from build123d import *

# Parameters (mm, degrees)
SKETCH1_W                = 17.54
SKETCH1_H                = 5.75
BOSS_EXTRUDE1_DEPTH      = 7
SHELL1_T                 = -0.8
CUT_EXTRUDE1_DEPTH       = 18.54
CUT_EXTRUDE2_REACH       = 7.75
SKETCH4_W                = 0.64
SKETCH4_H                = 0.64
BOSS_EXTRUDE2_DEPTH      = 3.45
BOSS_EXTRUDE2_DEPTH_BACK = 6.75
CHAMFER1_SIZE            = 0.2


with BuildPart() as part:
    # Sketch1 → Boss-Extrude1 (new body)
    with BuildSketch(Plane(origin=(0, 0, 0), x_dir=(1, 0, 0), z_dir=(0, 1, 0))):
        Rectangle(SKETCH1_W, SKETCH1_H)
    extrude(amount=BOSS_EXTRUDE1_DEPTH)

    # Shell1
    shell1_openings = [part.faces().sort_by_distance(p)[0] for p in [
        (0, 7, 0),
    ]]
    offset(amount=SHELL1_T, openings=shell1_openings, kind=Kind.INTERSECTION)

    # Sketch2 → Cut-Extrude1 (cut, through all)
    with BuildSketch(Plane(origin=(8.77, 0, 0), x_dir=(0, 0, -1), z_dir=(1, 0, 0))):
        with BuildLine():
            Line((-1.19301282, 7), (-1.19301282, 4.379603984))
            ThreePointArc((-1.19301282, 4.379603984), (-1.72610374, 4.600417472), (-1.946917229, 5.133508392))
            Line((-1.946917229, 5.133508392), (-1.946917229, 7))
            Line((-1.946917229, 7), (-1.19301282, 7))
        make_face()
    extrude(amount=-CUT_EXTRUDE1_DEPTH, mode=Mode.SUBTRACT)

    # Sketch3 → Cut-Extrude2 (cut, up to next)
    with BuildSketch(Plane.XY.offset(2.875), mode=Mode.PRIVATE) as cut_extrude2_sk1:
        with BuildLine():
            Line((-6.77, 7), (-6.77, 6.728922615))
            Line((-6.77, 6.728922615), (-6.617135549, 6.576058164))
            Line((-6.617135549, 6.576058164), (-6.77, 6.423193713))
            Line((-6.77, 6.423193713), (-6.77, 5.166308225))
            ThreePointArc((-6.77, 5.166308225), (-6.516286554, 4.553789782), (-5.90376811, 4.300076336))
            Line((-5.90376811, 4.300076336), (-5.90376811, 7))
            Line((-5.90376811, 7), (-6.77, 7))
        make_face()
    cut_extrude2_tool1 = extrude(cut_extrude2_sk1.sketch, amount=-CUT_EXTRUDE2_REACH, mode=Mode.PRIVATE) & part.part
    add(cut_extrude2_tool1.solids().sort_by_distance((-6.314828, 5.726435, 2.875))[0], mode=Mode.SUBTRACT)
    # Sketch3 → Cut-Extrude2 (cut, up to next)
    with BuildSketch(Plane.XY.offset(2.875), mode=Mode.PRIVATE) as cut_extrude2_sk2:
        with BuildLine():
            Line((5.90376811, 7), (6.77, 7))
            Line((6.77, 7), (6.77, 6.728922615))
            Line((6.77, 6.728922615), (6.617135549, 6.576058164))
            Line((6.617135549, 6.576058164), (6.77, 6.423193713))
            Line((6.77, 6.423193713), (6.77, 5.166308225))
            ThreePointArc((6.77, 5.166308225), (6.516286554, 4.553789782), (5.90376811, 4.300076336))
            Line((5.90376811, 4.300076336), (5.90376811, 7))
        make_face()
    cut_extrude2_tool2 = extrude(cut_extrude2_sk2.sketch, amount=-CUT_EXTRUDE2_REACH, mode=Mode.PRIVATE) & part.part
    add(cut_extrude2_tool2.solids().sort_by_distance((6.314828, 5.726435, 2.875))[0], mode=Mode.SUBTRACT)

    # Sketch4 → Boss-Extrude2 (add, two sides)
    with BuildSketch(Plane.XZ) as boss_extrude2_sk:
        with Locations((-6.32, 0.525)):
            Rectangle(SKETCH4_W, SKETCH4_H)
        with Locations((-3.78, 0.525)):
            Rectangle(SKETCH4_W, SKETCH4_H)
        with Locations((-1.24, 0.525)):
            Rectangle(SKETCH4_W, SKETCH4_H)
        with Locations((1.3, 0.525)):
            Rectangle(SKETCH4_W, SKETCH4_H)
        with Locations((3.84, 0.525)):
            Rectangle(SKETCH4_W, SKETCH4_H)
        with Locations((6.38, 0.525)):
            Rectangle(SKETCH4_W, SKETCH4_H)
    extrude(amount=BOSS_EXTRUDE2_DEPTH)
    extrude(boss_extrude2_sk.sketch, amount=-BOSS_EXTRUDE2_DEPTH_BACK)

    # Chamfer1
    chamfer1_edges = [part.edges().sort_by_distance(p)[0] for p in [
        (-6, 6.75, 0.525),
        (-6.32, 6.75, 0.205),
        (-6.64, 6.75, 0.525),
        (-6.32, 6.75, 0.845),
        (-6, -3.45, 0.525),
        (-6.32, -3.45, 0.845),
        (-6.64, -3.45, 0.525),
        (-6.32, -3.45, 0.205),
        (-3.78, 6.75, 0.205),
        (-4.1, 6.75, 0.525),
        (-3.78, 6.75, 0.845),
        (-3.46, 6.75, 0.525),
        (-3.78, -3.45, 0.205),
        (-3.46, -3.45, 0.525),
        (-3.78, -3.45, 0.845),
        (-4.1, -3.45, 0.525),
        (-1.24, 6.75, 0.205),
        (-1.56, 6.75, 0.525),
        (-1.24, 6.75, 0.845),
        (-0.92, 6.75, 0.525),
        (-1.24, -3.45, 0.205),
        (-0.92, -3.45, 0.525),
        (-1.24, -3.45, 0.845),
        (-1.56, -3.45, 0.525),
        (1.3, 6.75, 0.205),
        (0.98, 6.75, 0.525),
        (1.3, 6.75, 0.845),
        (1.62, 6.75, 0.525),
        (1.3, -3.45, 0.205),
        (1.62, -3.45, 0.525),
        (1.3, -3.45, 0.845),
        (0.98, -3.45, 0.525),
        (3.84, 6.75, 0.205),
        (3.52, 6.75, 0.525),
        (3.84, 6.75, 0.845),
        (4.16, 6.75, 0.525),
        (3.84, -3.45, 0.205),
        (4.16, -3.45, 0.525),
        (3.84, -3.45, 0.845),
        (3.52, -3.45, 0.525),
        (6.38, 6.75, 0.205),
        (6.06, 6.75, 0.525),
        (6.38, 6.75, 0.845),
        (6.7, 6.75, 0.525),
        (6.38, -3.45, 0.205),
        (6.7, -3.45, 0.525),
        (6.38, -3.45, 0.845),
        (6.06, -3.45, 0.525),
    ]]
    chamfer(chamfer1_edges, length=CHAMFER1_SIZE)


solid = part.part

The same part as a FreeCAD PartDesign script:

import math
import FreeCAD as App
import Part
import Sketcher

V = App.Vector
Q = App.Units.Quantity


def edges_at(feature, points):
    """Names of the edges that pass closest to the given points."""
    edges = feature.Shape.Edges
    near = lambda p: min(range(len(edges)), key=lambda i: edges[i].distToShape(Part.Vertex(*p))[0])
    return sorted({f"Edge{near(p) + 1}" for p in points})


def faces_at(feature, points):
    """Names of the faces that lie closest to the given points."""
    faces = feature.Shape.Faces
    near = lambda p: min(range(len(faces)), key=lambda i: faces[i].distToShape(Part.Vertex(*p))[0])
    return sorted({f"Face{near(p) + 1}" for p in points})

doc = App.newDocument("Part")
body = doc.addObject("PartDesign::Body", "Body")

# Sketch on XZ plane
sketch1 = body.newObject("Sketcher::SketchObject", "Sketch")
sketch1.AttachmentSupport = (doc.getObject("XZ_Plane"), [""])
sketch1.MapMode = "FlatFace"
sketch1.addGeometry([
    Part.LineSegment(V(-9, -3, 0), V(-9, 3, 0)),
    Part.LineSegment(V(-9, 3, 0), V(9, 3, 0)),
    Part.LineSegment(V(9, 3, 0), V(9, -3, 0)),
    Part.LineSegment(V(9, -3, 0), V(-9, -3, 0)),
], False)
sketch1.addConstraint([
    Sketcher.Constraint("Coincident", 0, 2, 1, 1),
    Sketcher.Constraint("Coincident", 1, 2, 2, 1),
    Sketcher.Constraint("Coincident", 2, 2, 3, 1),
    Sketcher.Constraint("Coincident", 3, 2, 0, 1),
    Sketcher.Constraint("Vertical", 0),
    Sketcher.Constraint("Horizontal", 1),
    Sketcher.Constraint("Vertical", 2),
    Sketcher.Constraint("Horizontal", 3),
    Sketcher.Constraint("Symmetric", 0, 2, 2, 2, -1, 1),
    Sketcher.Constraint("DistanceX", 1, 1, 1, 2, Q("17.54 mm")),
    Sketcher.Constraint("DistanceY", 0, 1, 0, 2, Q("5.75 mm")),
])
pad1 = body.newObject("PartDesign::Pad", "Pad")
pad1.Profile = sketch1
pad1.Length = 7
pad1.Reversed = True
doc.recompute()

thickness = body.newObject("PartDesign::Thickness", "Thickness")
thickness.Base = (pad1, faces_at(pad1, [(0, 7, 0)]))
thickness.Value = 0.8
thickness.Reversed = True
thickness.Join = "Intersection"

# Sketch on YZ plane
sketch2 = body.newObject("Sketcher::SketchObject", "Sketch001")
sketch2.AttachmentSupport = (doc.getObject("YZ_Plane"), [""])
sketch2.MapMode = "FlatFace"
sketch2.AttachmentOffset = App.Placement(V(0, 0, 8.77), App.Rotation())
sketch2.addGeometry([
    Part.LineSegment(V(4.4, 1.2, 0), V(7, 1.2, 0)),
    Part.LineSegment(V(7, 1.2, 0), V(7, 1.9, 0)),
    Part.LineSegment(V(7, 1.9, 0), V(5.1, 1.9, 0)),
    Part.ArcOfCircle(Part.Circle(V(5.1, 1.2, 0), V(0, 0, 1), 0.8), math.radians(90), math.radians(180)),
], False)
sketch2.addConstraint([
    Sketcher.Constraint("Coincident", 0, 2, 1, 1),
    Sketcher.Constraint("Coincident", 1, 2, 2, 1),
    Sketcher.Constraint("Tangent", 2, 2, 3, 1),
    Sketcher.Constraint("Coincident", 3, 2, 0, 1),
    Sketcher.Constraint("Horizontal", 0),
    Sketcher.Constraint("Vertical", 1),
    Sketcher.Constraint("Horizontal", 2),
    Sketcher.Constraint("Horizontal", 3, 3, 0, 2),
    Sketcher.Constraint("DistanceX", -1, 1, 0, 2, Q("7 mm")),
    Sketcher.Constraint("Radius", 3, Q("0.753904 mm")),
    Sketcher.Constraint("DistanceX", 2, 2, 2, 1, Q("1.866492 mm")),
    Sketcher.Constraint("DistanceY", -1, 1, 3, 3, Q("1.193013 mm")),
])
pocket1 = body.newObject("PartDesign::Pocket", "Pocket")
pocket1.Profile = sketch2
pocket1.Type = "ThroughAll"

# Sketch on XY plane
sketch3 = body.newObject("Sketcher::SketchObject", "Sketch002")
sketch3.AttachmentSupport = (doc.getObject("XY_Plane"), [""])
sketch3.MapMode = "FlatFace"
sketch3.AttachmentOffset = App.Placement(V(0, 0, 2.875), App.Rotation())
sketch3.addGeometry([
    Part.LineSegment(V(-6.77, 7, 0), V(-6.77, 6.73, 0)),  # 0
    Part.LineSegment(V(-6.77, 6.73, 0), V(-6.62, 6.58, 0)),  # 1
    Part.LineSegment(V(-6.62, 6.58, 0), V(-6.77, 6.42, 0)),  # 2
    Part.LineSegment(V(-6.77, 6.42, 0), V(-6.77, 5.17, 0)),  # 3
    Part.ArcOfCircle(Part.Circle(V(-5.9, 5.17, 0), V(0, 0, 1), 0.87), math.radians(180), math.radians(270)),  # 4
    Part.LineSegment(V(-5.9, 4.3, 0), V(-5.9, 7, 0)),  # 5
    Part.LineSegment(V(-5.9, 7, 0), V(-6.77, 7, 0)),  # 6
], False)
sketch3.addConstraint([
    Sketcher.Constraint("Coincident", 0, 2, 1, 1),
    Sketcher.Constraint("Coincident", 1, 2, 2, 1),
    Sketcher.Constraint("Coincident", 2, 2, 3, 1),
    Sketcher.Constraint("Tangent", 3, 2, 4, 1),
    Sketcher.Constraint("Coincident", 4, 2, 5, 1),
    Sketcher.Constraint("Coincident", 5, 2, 6, 1),
    Sketcher.Constraint("Coincident", 6, 2, 0, 1),
    Sketcher.Constraint("Vertical", 0),
    Sketcher.Constraint("Vertical", 3),
    Sketcher.Constraint("Vertical", 5),
    Sketcher.Constraint("Horizontal", 6),
    Sketcher.Constraint("Perpendicular", 1, 2),
    Sketcher.Constraint("Vertical", 0, 2, 2, 2),
    Sketcher.Constraint("Equal", 1, 2),
    Sketcher.Constraint("DistanceY", -1, 1, 5, 2, Q("7 mm")),
    Sketcher.Constraint("DistanceX", 0, 2, -1, 1, Q("6.77 mm")),
    Sketcher.Constraint("Radius", 4, Q("0.866232 mm")),
    Sketcher.Constraint("DistanceX", 6, 2, 6, 1, Q("0.866232 mm")),
    Sketcher.Constraint("DistanceY", 0, 2, 0, 1, Q("0.271077 mm")),
    Sketcher.Constraint("DistanceY", 3, 2, 3, 1, Q("1.256885 mm")),
    Sketcher.Constraint("DistanceY", 5, 1, 5, 2, Q("2.699924 mm")),
])
pocket2 = body.newObject("PartDesign::Pocket", "Pocket001")
pocket2.Profile = sketch3
pocket2.Type = "UpToFirst"

# Sketch on XY plane
sketch4 = body.newObject("Sketcher::SketchObject", "Sketch003")
sketch4.AttachmentSupport = (doc.getObject("XY_Plane"), [""])
sketch4.MapMode = "FlatFace"
sketch4.AttachmentOffset = App.Placement(V(0, 0, 2.875), App.Rotation())
sketch4.addGeometry([
    Part.LineSegment(V(6.77, 7, 0), V(5.9, 7, 0)),  # 0
    Part.LineSegment(V(5.9, 7, 0), V(5.9, 4.3, 0)),  # 1
    Part.ArcOfCircle(Part.Circle(V(5.9, 5.17, 0), V(0, 0, 1), 0.87), math.radians(-90), math.radians(0)),  # 2
    Part.LineSegment(V(6.77, 5.17, 0), V(6.77, 6.42, 0)),  # 3
    Part.LineSegment(V(6.77, 6.42, 0), V(6.62, 6.58, 0)),  # 4
    Part.LineSegment(V(6.62, 6.58, 0), V(6.77, 6.73, 0)),  # 5
    Part.LineSegment(V(6.77, 6.73, 0), V(6.77, 7, 0)),  # 6
], False)
sketch4.addConstraint([
    Sketcher.Constraint("Coincident", 0, 2, 1, 1),
    Sketcher.Constraint("Coincident", 1, 2, 2, 1),
    Sketcher.Constraint("Tangent", 2, 2, 3, 1),
    Sketcher.Constraint("Coincident", 3, 2, 4, 1),
    Sketcher.Constraint("Coincident", 4, 2, 5, 1),
    Sketcher.Constraint("Coincident", 5, 2, 6, 1),
    Sketcher.Constraint("Coincident", 6, 2, 0, 1),
    Sketcher.Constraint("Horizontal", 0),
    Sketcher.Constraint("Vertical", 1),
    Sketcher.Constraint("Vertical", 3),
    Sketcher.Constraint("Vertical", 6),
    Sketcher.Constraint("Perpendicular", 4, 5),
    Sketcher.Constraint("Vertical", 2, 3, 0, 2),
    Sketcher.Constraint("Vertical", 3, 2, 5, 2),
    Sketcher.Constraint("Equal", 4, 5),
    Sketcher.Constraint("DistanceY", -1, 1, 0, 2, Q("7 mm")),
    Sketcher.Constraint("DistanceX", -1, 1, 2, 2, Q("6.77 mm")),
    Sketcher.Constraint("Radius", 2, Q("0.866232 mm")),
    Sketcher.Constraint("DistanceY", 1, 2, 1, 1, Q("2.699924 mm")),
    Sketcher.Constraint("DistanceY", 3, 1, 3, 2, Q("1.256885 mm")),
    Sketcher.Constraint("DistanceY", 6, 1, 6, 2, Q("0.271077 mm")),
])
pocket3 = body.newObject("PartDesign::Pocket", "Pocket002")
pocket3.Profile = sketch4
pocket3.Type = "UpToFirst"

# Sketch on XZ plane
sketch5 = body.newObject("Sketcher::SketchObject", "Sketch004")
sketch5.AttachmentSupport = (doc.getObject("XZ_Plane"), [""])
sketch5.MapMode = "FlatFace"
sketch5.addGeometry([
    Part.LineSegment(V(-6.6, 0.8, 0), V(-6.6, 0.2, 0)),  # 0
    Part.LineSegment(V(-6.6, 0.2, 0), V(-6, 0.2, 0)),  # 1
    Part.LineSegment(V(-6, 0.2, 0), V(-6, 0.8, 0)),  # 2
    Part.LineSegment(V(-6, 0.8, 0), V(-6.6, 0.8, 0)),  # 3
    Part.LineSegment(V(-4.1, 0.8, 0), V(-4.1, 0.2, 0)),  # 4
    Part.LineSegment(V(-4.1, 0.2, 0), V(-3.5, 0.2, 0)),  # 5
    Part.LineSegment(V(-3.5, 0.2, 0), V(-3.5, 0.8, 0)),  # 6
    Part.LineSegment(V(-3.5, 0.8, 0), V(-4.1, 0.8, 0)),  # 7
    Part.LineSegment(V(-1.6, 0.8, 0), V(-1.6, 0.2, 0)),  # 8
    Part.LineSegment(V(-1.6, 0.2, 0), V(-0.9, 0.2, 0)),  # 9
    Part.LineSegment(V(-0.9, 0.2, 0), V(-0.9, 0.8, 0)),  # 10
    Part.LineSegment(V(-0.9, 0.8, 0), V(-1.6, 0.8, 0)),  # 11
    Part.LineSegment(V(1, 0.8, 0), V(1, 0.2, 0)),  # 12
    Part.LineSegment(V(1, 0.2, 0), V(1.6, 0.2, 0)),  # 13
    Part.LineSegment(V(1.6, 0.2, 0), V(1.6, 0.8, 0)),  # 14
    Part.LineSegment(V(1.6, 0.8, 0), V(1, 0.8, 0)),  # 15
    Part.LineSegment(V(3.5, 0.8, 0), V(3.5, 0.2, 0)),  # 16
    Part.LineSegment(V(3.5, 0.2, 0), V(4.2, 0.2, 0)),  # 17
    Part.LineSegment(V(4.2, 0.2, 0), V(4.2, 0.8, 0)),  # 18
    Part.LineSegment(V(4.2, 0.8, 0), V(3.5, 0.8, 0)),  # 19
    Part.LineSegment(V(6.1, 0.8, 0), V(6.1, 0.2, 0)),  # 20
    Part.LineSegment(V(6.1, 0.2, 0), V(6.7, 0.2, 0)),  # 21
    Part.LineSegment(V(6.7, 0.2, 0), V(6.7, 0.8, 0)),  # 22
    Part.LineSegment(V(6.7, 0.8, 0), V(6.1, 0.8, 0)),  # 23
], False)
sketch5.addConstraint([
    Sketcher.Constraint("Coincident", 0, 2, 1, 1),
    Sketcher.Constraint("Coincident", 1, 2, 2, 1),
    Sketcher.Constraint("Coincident", 2, 2, 3, 1),
    Sketcher.Constraint("Coincident", 3, 2, 0, 1),
    Sketcher.Constraint("Coincident", 4, 2, 5, 1),
    Sketcher.Constraint("Coincident", 5, 2, 6, 1),
    Sketcher.Constraint("Coincident", 6, 2, 7, 1),
    Sketcher.Constraint("Coincident", 7, 2, 4, 1),
    Sketcher.Constraint("Coincident", 8, 2, 9, 1),
    Sketcher.Constraint("Coincident", 9, 2, 10, 1),
    Sketcher.Constraint("Coincident", 10, 2, 11, 1),
    Sketcher.Constraint("Coincident", 11, 2, 8, 1),
    Sketcher.Constraint("Coincident", 12, 2, 13, 1),
    Sketcher.Constraint("Coincident", 13, 2, 14, 1),
    Sketcher.Constraint("Coincident", 14, 2, 15, 1),
    Sketcher.Constraint("Coincident", 15, 2, 12, 1),
    Sketcher.Constraint("Coincident", 16, 2, 17, 1),
    Sketcher.Constraint("Coincident", 17, 2, 18, 1),
    Sketcher.Constraint("Coincident", 18, 2, 19, 1),
    Sketcher.Constraint("Coincident", 19, 2, 16, 1),
    Sketcher.Constraint("Coincident", 20, 2, 21, 1),
    Sketcher.Constraint("Coincident", 21, 2, 22, 1),
    Sketcher.Constraint("Coincident", 22, 2, 23, 1),
    Sketcher.Constraint("Coincident", 23, 2, 20, 1),
    Sketcher.Constraint("Vertical", 0),
    Sketcher.Constraint("Horizontal", 1),
    Sketcher.Constraint("Vertical", 2),
    Sketcher.Constraint("Horizontal", 3),
    Sketcher.Constraint("Vertical", 4),
    Sketcher.Constraint("Horizontal", 5),
    Sketcher.Constraint("Vertical", 6),
    Sketcher.Constraint("Horizontal", 7),
    Sketcher.Constraint("Vertical", 8),
    Sketcher.Constraint("Horizontal", 9),
    Sketcher.Constraint("Vertical", 10),
    Sketcher.Constraint("Horizontal", 11),
    Sketcher.Constraint("Vertical", 12),
    Sketcher.Constraint("Horizontal", 13),
    Sketcher.Constraint("Vertical", 14),
    Sketcher.Constraint("Horizontal", 15),
    Sketcher.Constraint("Vertical", 16),
    Sketcher.Constraint("Horizontal", 17),
    Sketcher.Constraint("Vertical", 18),
    Sketcher.Constraint("Horizontal", 19),
    Sketcher.Constraint("Vertical", 20),
    Sketcher.Constraint("Horizontal", 21),
    Sketcher.Constraint("Vertical", 22),
    Sketcher.Constraint("Horizontal", 23),
    Sketcher.Constraint("Horizontal", 1, 2, 4, 2),
    Sketcher.Constraint("Horizontal", 3, 2, 6, 2),
    Sketcher.Constraint("Horizontal", 5, 2, 8, 2),
    Sketcher.Constraint("Horizontal", 7, 2, 10, 2),
    Sketcher.Constraint("Horizontal", 9, 2, 12, 2),
    Sketcher.Constraint("Horizontal", 11, 2, 14, 2),
    Sketcher.Constraint("Horizontal", 13, 2, 16, 2),
    Sketcher.Constraint("Horizontal", 15, 2, 18, 2),
    Sketcher.Constraint("Horizontal", 17, 2, 20, 2),
    Sketcher.Constraint("Horizontal", 19, 2, 22, 2),
    Sketcher.Constraint("Equal", 3, 5),
    Sketcher.Constraint("Equal", 7, 9),
    Sketcher.Constraint("Equal", 11, 13),
    Sketcher.Constraint("Equal", 15, 17),
    Sketcher.Constraint("Equal", 19, 21),
    Sketcher.Constraint("Equal", 23, 0),
    Sketcher.Constraint("DistanceX", 1, 2, -1, 1, Q("6 mm")),
    Sketcher.Constraint("DistanceX", 1, 1, 1, 2, Q("0.64 mm")),
    Sketcher.Constraint("DistanceX", 4, 2, -1, 1, Q("4.1 mm")),
    Sketcher.Constraint("DistanceX", -1, 1, 21, 2, Q("6.7 mm")),
    Sketcher.Constraint("DistanceX", 5, 2, 8, 2, Q("1.9 mm")),
    Sketcher.Constraint("DistanceX", 9, 2, 12, 2, Q("1.9 mm")),
    Sketcher.Constraint("DistanceX", 13, 2, 16, 2, Q("1.9 mm")),
    Sketcher.Constraint("DistanceY", -1, 1, 0, 2, Q("0.205 mm")),
])
pad2 = body.newObject("PartDesign::Pad", "Pad001")
pad2.Profile = sketch5
pad2.Type = "TwoLengths"
pad2.Length = 3.45
pad2.Length2 = 6.75
doc.recompute()

chamfer = body.newObject("PartDesign::Chamfer", "Chamfer")
chamfer.Base = (pad2, edges_at(pad2, [
    (-6, 6.75, 0.525),
    (-6.32, 6.75, 0.205),
    (-6.64, 6.75, 0.525),
    (-6.32, 6.75, 0.845),
    (-6, -3.45, 0.525),
    (-6.32, -3.45, 0.845),
    (-6.64, -3.45, 0.525),
    (-6.32, -3.45, 0.205),
    (-3.78, 6.75, 0.205),
    (-4.1, 6.75, 0.525),
    (-3.78, 6.75, 0.845),
    (-3.46, 6.75, 0.525),
    (-3.78, -3.45, 0.205),
    (-3.46, -3.45, 0.525),
    (-3.78, -3.45, 0.845),
    (-4.1, -3.45, 0.525),
    (-1.24, 6.75, 0.205),
    (-1.56, 6.75, 0.525),
    (-1.24, 6.75, 0.845),
    (-0.92, 6.75, 0.525),
    (-1.24, -3.45, 0.205),
    (-0.92, -3.45, 0.525),
    (-1.24, -3.45, 0.845),
    (-1.56, -3.45, 0.525),
    (1.3, 6.75, 0.205),
    (0.98, 6.75, 0.525),
    (1.3, 6.75, 0.845),
    (1.62, 6.75, 0.525),
    (1.3, -3.45, 0.205),
    (1.62, -3.45, 0.525),
    (1.3, -3.45, 0.845),
    (0.98, -3.45, 0.525),
    (3.84, 6.75, 0.205),
    (3.52, 6.75, 0.525),
    (3.84, 6.75, 0.845),
    (4.16, 6.75, 0.525),
    (3.84, -3.45, 0.205),
    (4.16, -3.45, 0.525),
    (3.84, -3.45, 0.845),
    (3.52, -3.45, 0.525),
    (6.38, 6.75, 0.205),
    (6.06, 6.75, 0.525),
    (6.38, 6.75, 0.845),
    (6.7, 6.75, 0.525),
    (6.38, -3.45, 0.205),
    (6.7, -3.45, 0.525),
    (6.38, -3.45, 0.845),
    (6.06, -3.45, 0.525),
]))
chamfer.Size = 0.2

doc.recompute()
